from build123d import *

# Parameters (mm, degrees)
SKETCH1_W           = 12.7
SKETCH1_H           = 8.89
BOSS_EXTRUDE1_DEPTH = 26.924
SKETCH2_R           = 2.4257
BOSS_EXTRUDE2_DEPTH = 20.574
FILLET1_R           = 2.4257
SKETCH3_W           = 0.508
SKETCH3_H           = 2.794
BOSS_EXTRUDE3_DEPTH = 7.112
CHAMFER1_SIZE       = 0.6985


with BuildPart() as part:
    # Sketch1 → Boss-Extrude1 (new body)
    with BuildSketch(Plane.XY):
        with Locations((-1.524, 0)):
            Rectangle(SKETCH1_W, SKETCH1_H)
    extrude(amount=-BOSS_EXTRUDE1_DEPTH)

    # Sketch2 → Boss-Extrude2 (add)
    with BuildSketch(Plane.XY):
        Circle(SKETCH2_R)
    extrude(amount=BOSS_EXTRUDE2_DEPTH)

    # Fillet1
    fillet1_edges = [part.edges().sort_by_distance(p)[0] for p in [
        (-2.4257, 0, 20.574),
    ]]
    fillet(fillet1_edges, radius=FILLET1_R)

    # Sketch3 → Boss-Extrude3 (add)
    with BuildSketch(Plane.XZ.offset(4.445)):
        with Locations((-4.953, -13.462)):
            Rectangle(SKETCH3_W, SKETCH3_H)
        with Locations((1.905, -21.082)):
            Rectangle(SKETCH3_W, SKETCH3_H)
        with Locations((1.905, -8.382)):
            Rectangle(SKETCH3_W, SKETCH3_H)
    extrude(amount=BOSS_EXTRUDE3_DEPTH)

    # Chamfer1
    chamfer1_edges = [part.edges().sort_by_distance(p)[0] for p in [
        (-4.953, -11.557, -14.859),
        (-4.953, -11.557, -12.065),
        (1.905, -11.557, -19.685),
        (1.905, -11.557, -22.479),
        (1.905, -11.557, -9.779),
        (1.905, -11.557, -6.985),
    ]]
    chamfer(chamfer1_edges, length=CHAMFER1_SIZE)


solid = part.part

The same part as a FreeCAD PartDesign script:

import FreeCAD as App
import Part
import Sketcher
Q = App.Units.Quantity


def edges_at(feature, points):
    """Names of the edges that pass closest to the given points."""
    edges = feature.Shape.Edges
    near = lambda p: min(range(len(edges)), key=lambda i: edges[i].distToShape(Part.Vertex(*p))[0])
    return sorted({f"Edge{near(p) + 1}" for p in points})

doc = App.newDocument("Part")
params = doc.addObject("Spreadsheet::Sheet", "Params")
for row, (alias, value) in enumerate([
    ("sketch1_width", "0.5 in"),
    ("sketch1_height", "0.35 in"),
    ("pad1_length", "1.06 in"),
    ("sketch2_diameter", "0.191 in"),
    ("pad2_length", "0.81 in"),
    ("fillet_radius", "0.0955 in"),
    ("sketch3_width", "0.02 in"),
    ("sketch3_height", "0.11 in"),
    ("pad3_length", "0.28 in"),
    ("chamfer_size", "0.0275 in"),
], start=1):
    params.set(f"A{row}", alias)
    params.set(f"B{row}", "=" + value)
    params.setAlias(f"B{row}", alias)

body = doc.addObject("PartDesign::Body", "Body")

# Sketch on XY plane
sketch1 = doc.addObject("Sketcher::SketchObject", "Sketch")
body.addObject(sketch1)
sketch1.AttachmentSupport = (doc.XY_Plane, [""])
sketch1.MapMode = "FlatFace"
sketch1.addGeometry([
    Part.LineSegment(App.Vector(-7.874, 4.445, 0), App.Vector(-7.874, -4.445, 0)),
    Part.LineSegment(App.Vector(-7.874, -4.445, 0), App.Vector(4.826, -4.445, 0)),
    Part.LineSegment(App.Vector(4.826, -4.445, 0), App.Vector(4.826, 4.445, 0)),
    Part.LineSegment(App.Vector(4.826, 4.445, 0), App.Vector(-7.874, 4.445, 0)),
], False)
sketch1.addConstraint([
    Sketcher.Constraint("Coincident", 0, 2, 1, 1),
    Sketcher.Constraint("Coincident", 1, 2, 2, 1),
    Sketcher.Constraint("Coincident", 2, 2, 3, 1),
    Sketcher.Constraint("Coincident", 3, 2, 0, 1),
    Sketcher.Constraint("Vertical", 0),
    Sketcher.Constraint("Horizontal", 1),
    Sketcher.Constraint("Vertical", 2),
    Sketcher.Constraint("Horizontal", 3),
    Sketcher.Constraint("DistanceX", 1, 1, 1, 2, Q("0.5 in")),
    Sketcher.Constraint("DistanceY", 0, 2, 0, 1, Q("0.35 in")),
    Sketcher.Constraint("DistanceX", 0, 2, -1, 1, Q("0.31 in")),
    Sketcher.Constraint("DistanceY", 0, 2, -1, 1, Q("0.175 in")),
])
sketch1.setExpression("Constraints[8]", "Params.sketch1_width")
sketch1.setExpression("Constraints[9]", "Params.sketch1_height")
pad1 = doc.addObject("PartDesign::Pad", "Pad")
body.addObject(pad1)
pad1.Profile = sketch1
pad1.setExpression("Length", "Params.pad1_length")
pad1.Reversed = True

# Sketch on XY plane
sketch2 = doc.addObject("Sketcher::SketchObject", "Sketch001")
body.addObject(sketch2)
sketch2.AttachmentSupport = (doc.XY_Plane, [""])
sketch2.MapMode = "FlatFace"
sketch2.addGeometry(Part.Circle(App.Vector(0, 0, 0), App.Vector(0, 0, 1), 2.4257), False)
sketch2.addConstraint([
    Sketcher.Constraint("Coincident", 0, 3, -1, 1),
    Sketcher.Constraint("Diameter", 0, Q("0.191 in")),
])
sketch2.setExpression("Constraints[1]", "Params.sketch2_diameter")
pad2 = doc.addObject("PartDesign::Pad", "Pad001")
body.addObject(pad2)
pad2.Profile = sketch2
pad2.setExpression("Length", "Params.pad2_length")
doc.recompute()

fillet = doc.addObject("PartDesign::Fillet", "Fillet")
body.addObject(fillet)
fillet.Base = (pad2, edges_at(pad2, [(-2.426, 0, 20.574)]))
fillet.setExpression("Radius", "Params.fillet_radius")

# Sketch on XZ plane
sketch3 = doc.addObject("Sketcher::SketchObject", "Sketch002")
body.addObject(sketch3)
sketch3.AttachmentSupport = (doc.XZ_Plane, [""])
sketch3.MapMode = "FlatFace"
sketch3.AttachmentOffset = App.Placement(App.Vector(0, 0, 0.175 * 25.4), App.Rotation())
sketch3.addGeometry([
    Part.LineSegment(App.Vector(-5.207, -12.065, 0), App.Vector(-5.207, -14.859, 0)),  # 0
    Part.LineSegment(App.Vector(-5.207, -14.859, 0), App.Vector(-4.699, -14.859, 0)),  # 1
    Part.LineSegment(App.Vector(-4.699, -14.859, 0), App.Vector(-4.699, -12.065, 0)),  # 2
    Part.LineSegment(App.Vector(-4.699, -12.065, 0), App.Vector(-5.207, -12.065, 0)),  # 3
    Part.LineSegment(App.Vector(1.651, -19.685, 0), App.Vector(1.651, -22.479, 0)),  # 4
    Part.LineSegment(App.Vector(1.651, -22.479, 0), App.Vector(2.159, -22.479, 0)),  # 5
    Part.LineSegment(App.Vector(2.159, -22.479, 0), App.Vector(2.159, -19.685, 0)),  # 6
    Part.LineSegment(App.Vector(2.159, -19.685, 0), App.Vector(1.651, -19.685, 0)),  # 7
    Part.LineSegment(App.Vector(1.651, -6.985, 0), App.Vector(1.651, -9.779, 0)),  # 8
    Part.LineSegment(App.Vector(1.651, -9.779, 0), App.Vector(2.159, -9.779, 0)),  # 9
    Part.LineSegment(App.Vector(2.159, -9.779, 0), App.Vector(2.159, -6.985, 0)),  # 10
    Part.LineSegment(App.Vector(2.159, -6.985, 0), App.Vector(1.651, -6.985, 0)),  # 11
], False)
sketch3.addConstraint([
    Sketcher.Constraint("Coincident", 0, 2, 1, 1),
    Sketcher.Constraint("Coincident", 1, 2, 2, 1),
    Sketcher.Constraint("Coincident", 2, 2, 3, 1),
    Sketcher.Constraint("Coincident", 3, 2, 0, 1),
    Sketcher.Constraint("Coincident", 4, 2, 5, 1),
    Sketcher.Constraint("Coincident", 5, 2, 6, 1),
    Sketcher.Constraint("Coincident", 6, 2, 7, 1),
    Sketcher.Constraint("Coincident", 7, 2, 4, 1),
    Sketcher.Constraint("Coincident", 8, 2, 9, 1),
    Sketcher.Constraint("Coincident", 9, 2, 10, 1),
    Sketcher.Constraint("Coincident", 10, 2, 11, 1),
    Sketcher.Constraint("Coincident", 11, 2, 8, 1),
    Sketcher.Constraint("Vertical", 0),
    Sketcher.Constraint("Horizontal", 1),
    Sketcher.Constraint("Vertical", 2),
    Sketcher.Constraint("Horizontal", 3),
    Sketcher.Constraint("Vertical", 4),
    Sketcher.Constraint("Horizontal", 5),
    Sketcher.Constraint("Vertical", 6),
    Sketcher.Constraint("Horizontal", 7),
    Sketcher.Constraint("Vertical", 8),
    Sketcher.Constraint("Horizontal", 9),
    Sketcher.Constraint("Vertical", 10),
    Sketcher.Constraint("Horizontal", 11),
    Sketcher.Constraint("Vertical", 7, 2, 8, 2),
    Sketcher.Constraint("Vertical", 6, 2, 9, 2),
    Sketcher.Constraint("Equal", 3, 5),
    Sketcher.Constraint("Equal", 2, 4),
    Sketcher.Constraint("Equal", 6, 8),
    Sketcher.Constraint("DistanceX", 1, 1, 1, 2, Q("0.02 in")),
    Sketcher.Constraint("DistanceY", 0, 2, 0, 1, Q("0.11 in")),
    Sketcher.Constraint("DistanceY", 4, 2, 1, 2, Q("0.3 in")),
    Sketcher.Constraint("DistanceY", 1, 2, 8, 2, Q("0.2 in")),
    Sketcher.Constraint("DistanceX", 1, 2, 4, 2, Q("0.25 in")),
    Sketcher.Constraint("DistanceX", 0, 2, -1, 1, Q("0.205 in")),
    Sketcher.Constraint("DistanceY", 0, 2, -1, 1, Q("0.585 in")),
])
sketch3.setExpression("Constraints[29]", "Params.sketch3_width")
sketch3.setExpression("Constraints[30]", "Params.sketch3_height")
pad3 = doc.addObject("PartDesign::Pad", "Pad002")
body.addObject(pad3)
pad3.Profile = sketch3
pad3.setExpression("Length", "Params.pad3_length")
doc.recompute()

chamfer = doc.addObject("PartDesign::Chamfer", "Chamfer")
body.addObject(chamfer)
chamfer.Base = (pad3, edges_at(pad3, [
    (-4.953, -11.557, -14.859),
    (-4.953, -11.557, -12.065),
    (1.905, -11.557, -19.685),
    (1.905, -11.557, -22.479),
    (1.905, -11.557, -9.779),
    (1.905, -11.557, -6.985),
]))
chamfer.setExpression("Size", "Params.chamfer_size")

doc.recompute()
